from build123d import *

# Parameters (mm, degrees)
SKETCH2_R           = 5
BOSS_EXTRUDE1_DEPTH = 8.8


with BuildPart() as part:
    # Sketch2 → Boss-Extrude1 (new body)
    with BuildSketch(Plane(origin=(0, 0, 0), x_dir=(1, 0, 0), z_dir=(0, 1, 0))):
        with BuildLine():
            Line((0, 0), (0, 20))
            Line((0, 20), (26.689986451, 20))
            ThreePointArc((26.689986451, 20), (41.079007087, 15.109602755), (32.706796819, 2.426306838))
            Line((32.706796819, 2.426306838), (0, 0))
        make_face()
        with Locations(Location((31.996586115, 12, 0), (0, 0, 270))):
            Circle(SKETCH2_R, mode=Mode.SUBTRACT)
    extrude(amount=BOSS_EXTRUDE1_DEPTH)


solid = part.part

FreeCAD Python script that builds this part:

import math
import FreeCAD as App
import Part
import Sketcher

V = App.Vector

doc = App.newDocument("Part")
params = doc.addObject("Spreadsheet::Sheet", "Params")
for row, (alias, value) in enumerate([
    ("sketch1_diameter", "10 mm"),
    ("sketch1_radius", "9.6 mm"),
    ("sketch1_height", "20 mm"),
    ("pad1_length", "8.8 mm"),
], start=1):
    params.set(f"A{row}", alias)
    params.set(f"B{row}", "=" + value)
    params.setAlias(f"B{row}", alias)

body = doc.addObject("PartDesign::Body", "Body")

sketch1 = body.newObject("Sketcher::SketchObject", "Sketch")
sketch1.AttachmentSupport = (doc.getObject("XZ_Plane"), [""])
sketch1.MapMode = "FlatFace"
sketch1.addGeometry(Part.LineSegment(V(0, -20, 0), V(0, 0, 0)), False)
sketch1.addGeometry(Part.LineSegment(V(0, 0, 0), V(32.706797, -2.426307, 0)), False)
sketch1.addGeometry(Part.ArcOfCircle(Part.Circle(V(31.996586, -12, 0), V(0, 0, 1), 9.6), math.radians(-123.55731), math.radians(85.757366)), False)
sketch1.addGeometry(Part.LineSegment(V(26.689986, -20, 0), V(0, -20, 0)), False)
sketch1.addGeometry(Part.Circle(V(31.996586, -12, 0), V(0, 0, 1), 5), False)
sketch1.addConstraint(Sketcher.Constraint("Coincident", 0, 2, 1, 1))
sketch1.addConstraint(Sketcher.Constraint("Tangent", 1, 2, 2, 2))
sketch1.addConstraint(Sketcher.Constraint("Coincident", 2, 1, 3, 1))
sketch1.addConstraint(Sketcher.Constraint("Coincident", 3, 2, 0, 1))
sketch1.addConstraint(Sketcher.Constraint("Vertical", 0))
sketch1.addConstraint(Sketcher.Constraint("Horizontal", 3))
sketch1.addConstraint(Sketcher.Constraint("Coincident", 0, 2, -1, 1))
sketch1.addConstraint(Sketcher.Constraint("Coincident", 4, 3, 2, 3))
sketch1.addConstraint(Sketcher.Constraint("Diameter", 4, 10.0))
sketch1.addConstraint(Sketcher.Constraint("Radius", 2, 9.6))
sketch1.addConstraint(Sketcher.Constraint("DistanceY", 0, 1, 0, 2, 20.0))
sketch1.addConstraint(Sketcher.Constraint("DistanceY", 2, 3, -1, 1, 12.0))
sketch1.addConstraint(Sketcher.Constraint("Distance", 1, 32.796669))
sketch1.setExpression("Constraints[8]", "Params.sketch1_diameter")
sketch1.setExpression("Constraints[9]", "Params.sketch1_radius")
sketch1.setExpression("Constraints[10]", "Params.sketch1_height")
pad1 = body.newObject("PartDesign::Pad", "Pad")
pad1.Profile = sketch1
pad1.setExpression("Length", "Params.pad1_length")
pad1.Reversed = True

doc.recompute()
